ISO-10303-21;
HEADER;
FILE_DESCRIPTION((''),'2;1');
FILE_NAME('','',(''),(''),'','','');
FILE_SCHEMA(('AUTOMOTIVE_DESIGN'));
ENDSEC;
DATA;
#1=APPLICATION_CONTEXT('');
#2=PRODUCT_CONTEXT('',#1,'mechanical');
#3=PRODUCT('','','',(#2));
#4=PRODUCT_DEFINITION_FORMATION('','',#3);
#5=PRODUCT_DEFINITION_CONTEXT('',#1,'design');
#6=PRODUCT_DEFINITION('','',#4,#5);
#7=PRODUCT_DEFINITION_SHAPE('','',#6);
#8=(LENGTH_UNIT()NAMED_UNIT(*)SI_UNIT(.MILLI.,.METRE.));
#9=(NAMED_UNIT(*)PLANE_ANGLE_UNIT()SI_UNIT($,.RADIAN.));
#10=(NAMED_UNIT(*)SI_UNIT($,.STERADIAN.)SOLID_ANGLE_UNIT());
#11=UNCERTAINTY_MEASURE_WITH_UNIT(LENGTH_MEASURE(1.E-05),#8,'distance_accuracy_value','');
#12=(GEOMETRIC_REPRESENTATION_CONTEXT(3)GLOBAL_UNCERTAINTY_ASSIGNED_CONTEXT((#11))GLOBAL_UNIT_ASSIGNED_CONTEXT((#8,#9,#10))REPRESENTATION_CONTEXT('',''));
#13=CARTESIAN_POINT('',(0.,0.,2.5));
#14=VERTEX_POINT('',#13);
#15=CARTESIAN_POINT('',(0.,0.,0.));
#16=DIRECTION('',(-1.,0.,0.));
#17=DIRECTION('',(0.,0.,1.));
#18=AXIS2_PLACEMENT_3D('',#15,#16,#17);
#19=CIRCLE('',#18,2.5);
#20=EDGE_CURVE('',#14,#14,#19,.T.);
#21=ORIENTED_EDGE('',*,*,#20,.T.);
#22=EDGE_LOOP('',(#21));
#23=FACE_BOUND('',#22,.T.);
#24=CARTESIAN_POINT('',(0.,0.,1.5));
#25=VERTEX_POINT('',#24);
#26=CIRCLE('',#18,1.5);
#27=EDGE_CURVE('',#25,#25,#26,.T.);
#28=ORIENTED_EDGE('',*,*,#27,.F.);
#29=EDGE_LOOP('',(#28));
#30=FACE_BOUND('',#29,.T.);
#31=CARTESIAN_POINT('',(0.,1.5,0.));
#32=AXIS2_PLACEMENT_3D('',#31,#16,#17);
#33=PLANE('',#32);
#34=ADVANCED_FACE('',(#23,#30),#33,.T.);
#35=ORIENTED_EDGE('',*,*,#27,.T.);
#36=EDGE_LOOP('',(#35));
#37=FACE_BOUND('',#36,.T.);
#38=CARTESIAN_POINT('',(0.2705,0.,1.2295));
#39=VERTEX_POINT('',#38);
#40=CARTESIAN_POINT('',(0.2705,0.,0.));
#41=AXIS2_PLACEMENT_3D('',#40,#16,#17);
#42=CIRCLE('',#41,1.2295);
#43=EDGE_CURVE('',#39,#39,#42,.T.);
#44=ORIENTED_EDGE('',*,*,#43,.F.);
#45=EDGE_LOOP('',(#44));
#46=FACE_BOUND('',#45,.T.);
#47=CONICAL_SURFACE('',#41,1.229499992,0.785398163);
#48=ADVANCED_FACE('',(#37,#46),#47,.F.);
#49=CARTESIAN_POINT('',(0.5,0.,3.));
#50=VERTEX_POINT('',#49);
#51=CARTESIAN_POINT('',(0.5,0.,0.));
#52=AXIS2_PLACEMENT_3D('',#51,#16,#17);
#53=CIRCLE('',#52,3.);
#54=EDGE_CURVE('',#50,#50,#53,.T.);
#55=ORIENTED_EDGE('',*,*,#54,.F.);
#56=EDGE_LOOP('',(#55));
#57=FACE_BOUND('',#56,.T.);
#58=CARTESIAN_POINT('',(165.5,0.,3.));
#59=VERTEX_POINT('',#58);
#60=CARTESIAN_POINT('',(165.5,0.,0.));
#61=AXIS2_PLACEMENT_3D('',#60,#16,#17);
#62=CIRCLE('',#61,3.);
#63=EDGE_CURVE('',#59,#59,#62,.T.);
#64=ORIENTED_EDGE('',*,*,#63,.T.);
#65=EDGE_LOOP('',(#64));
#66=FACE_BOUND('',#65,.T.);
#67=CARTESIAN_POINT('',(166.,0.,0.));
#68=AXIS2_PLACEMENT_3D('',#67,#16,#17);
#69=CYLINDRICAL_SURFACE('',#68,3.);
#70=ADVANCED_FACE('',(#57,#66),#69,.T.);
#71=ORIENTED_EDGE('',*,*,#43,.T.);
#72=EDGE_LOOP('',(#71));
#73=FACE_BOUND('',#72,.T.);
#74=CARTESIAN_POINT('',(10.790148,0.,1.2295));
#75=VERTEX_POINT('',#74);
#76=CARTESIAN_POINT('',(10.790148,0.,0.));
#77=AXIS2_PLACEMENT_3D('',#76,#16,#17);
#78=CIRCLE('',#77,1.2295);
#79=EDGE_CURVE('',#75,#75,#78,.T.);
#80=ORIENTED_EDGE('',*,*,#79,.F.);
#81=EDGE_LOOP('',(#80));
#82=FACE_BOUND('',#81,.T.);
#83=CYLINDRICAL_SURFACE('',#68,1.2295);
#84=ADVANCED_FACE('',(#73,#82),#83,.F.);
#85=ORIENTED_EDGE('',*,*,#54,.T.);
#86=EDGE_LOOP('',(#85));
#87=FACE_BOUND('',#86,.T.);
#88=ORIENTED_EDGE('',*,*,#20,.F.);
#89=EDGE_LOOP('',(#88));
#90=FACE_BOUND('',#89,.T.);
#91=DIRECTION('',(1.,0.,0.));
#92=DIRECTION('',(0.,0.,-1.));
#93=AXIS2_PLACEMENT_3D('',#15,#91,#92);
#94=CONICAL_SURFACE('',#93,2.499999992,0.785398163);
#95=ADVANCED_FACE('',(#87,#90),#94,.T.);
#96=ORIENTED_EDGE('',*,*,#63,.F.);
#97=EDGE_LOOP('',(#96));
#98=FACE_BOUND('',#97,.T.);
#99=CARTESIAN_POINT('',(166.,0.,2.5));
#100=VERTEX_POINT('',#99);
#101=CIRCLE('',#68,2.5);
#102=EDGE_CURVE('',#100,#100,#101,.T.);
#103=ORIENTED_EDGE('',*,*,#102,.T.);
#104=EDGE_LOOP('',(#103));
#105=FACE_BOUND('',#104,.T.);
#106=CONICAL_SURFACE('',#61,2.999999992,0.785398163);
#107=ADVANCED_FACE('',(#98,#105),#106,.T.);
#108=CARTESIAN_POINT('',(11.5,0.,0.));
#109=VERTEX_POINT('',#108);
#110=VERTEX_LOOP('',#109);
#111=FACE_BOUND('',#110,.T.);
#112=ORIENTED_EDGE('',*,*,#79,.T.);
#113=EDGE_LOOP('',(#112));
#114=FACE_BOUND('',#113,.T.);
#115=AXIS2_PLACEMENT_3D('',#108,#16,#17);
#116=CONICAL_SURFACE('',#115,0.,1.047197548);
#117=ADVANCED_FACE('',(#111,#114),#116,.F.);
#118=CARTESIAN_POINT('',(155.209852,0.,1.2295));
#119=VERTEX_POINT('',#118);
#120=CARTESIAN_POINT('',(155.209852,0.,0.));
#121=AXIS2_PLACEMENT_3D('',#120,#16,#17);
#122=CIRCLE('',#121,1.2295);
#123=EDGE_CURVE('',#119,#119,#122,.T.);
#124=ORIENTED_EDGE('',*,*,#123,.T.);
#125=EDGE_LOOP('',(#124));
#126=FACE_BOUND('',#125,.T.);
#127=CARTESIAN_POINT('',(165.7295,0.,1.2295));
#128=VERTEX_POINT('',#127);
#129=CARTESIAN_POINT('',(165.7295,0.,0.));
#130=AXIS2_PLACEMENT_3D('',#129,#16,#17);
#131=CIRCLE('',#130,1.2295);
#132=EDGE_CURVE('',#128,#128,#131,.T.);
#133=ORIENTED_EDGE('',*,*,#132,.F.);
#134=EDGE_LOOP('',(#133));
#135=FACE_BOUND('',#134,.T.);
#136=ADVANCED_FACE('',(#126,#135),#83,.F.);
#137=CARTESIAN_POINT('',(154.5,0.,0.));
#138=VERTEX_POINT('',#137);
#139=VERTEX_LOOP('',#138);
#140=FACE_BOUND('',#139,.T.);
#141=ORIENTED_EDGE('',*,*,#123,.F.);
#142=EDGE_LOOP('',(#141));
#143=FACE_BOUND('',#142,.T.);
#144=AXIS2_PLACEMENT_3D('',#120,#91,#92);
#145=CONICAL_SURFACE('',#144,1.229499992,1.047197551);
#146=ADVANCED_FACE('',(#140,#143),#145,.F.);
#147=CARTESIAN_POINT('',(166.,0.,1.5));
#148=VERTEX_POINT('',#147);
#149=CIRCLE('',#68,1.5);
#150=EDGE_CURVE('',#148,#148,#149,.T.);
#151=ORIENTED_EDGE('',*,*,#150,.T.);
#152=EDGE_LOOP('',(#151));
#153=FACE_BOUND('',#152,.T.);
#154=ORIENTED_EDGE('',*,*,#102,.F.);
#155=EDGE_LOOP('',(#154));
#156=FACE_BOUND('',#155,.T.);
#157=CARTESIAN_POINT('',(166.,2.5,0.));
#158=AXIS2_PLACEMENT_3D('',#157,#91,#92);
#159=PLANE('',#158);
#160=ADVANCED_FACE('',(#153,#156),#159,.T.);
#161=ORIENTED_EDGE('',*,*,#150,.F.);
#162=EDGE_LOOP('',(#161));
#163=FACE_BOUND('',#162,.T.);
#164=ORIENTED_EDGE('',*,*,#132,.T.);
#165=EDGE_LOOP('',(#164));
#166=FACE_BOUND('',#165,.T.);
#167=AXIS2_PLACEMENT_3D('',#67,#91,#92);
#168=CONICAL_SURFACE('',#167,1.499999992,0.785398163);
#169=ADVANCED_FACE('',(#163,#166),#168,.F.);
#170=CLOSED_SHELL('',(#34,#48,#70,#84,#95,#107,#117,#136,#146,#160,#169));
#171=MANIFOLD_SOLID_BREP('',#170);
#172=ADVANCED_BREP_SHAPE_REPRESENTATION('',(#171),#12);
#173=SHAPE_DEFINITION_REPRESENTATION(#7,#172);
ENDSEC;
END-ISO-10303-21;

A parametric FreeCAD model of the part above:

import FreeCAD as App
import Part
import Sketcher
from FreeCAD import Vector
Q = App.Units.Quantity


def add_polygon(sketch, points):
    """Adds a closed chain of lines whose ends are joined by coincident constraints."""
    first, n = sketch.GeometryCount, len(points)
    for a, b in zip(points, points[1:] + points[:1]):
        sketch.addGeometry(Part.LineSegment(App.Vector(*a, 0), App.Vector(*b, 0)), False)
    for i in range(n):
        sketch.addConstraint(Sketcher.Constraint("Coincident", first + i, 2, first + (i + 1) % n, 1))

doc = App.newDocument("Part")
body = doc.addObject("PartDesign::Body", "Body")

sketch1 = body.newObject("Sketcher::SketchObject", "Sketch")
sketch1.AttachmentSupport = (doc.getObject("XY_Plane"), [""])
sketch1.MapMode = "FlatFace"
add_polygon(sketch1, [(155.21, 1.23), (154.5, 0), (11.5, 0), (10.79, 1.23), (0.27, 1.23), (0, 1.5), (0, 2.5), (0.5, 3), (165.5, 3), (166, 2.5), (166, 1.5), (165.73, 1.23)])
sketch1.addConstraint(Sketcher.Constraint("Horizontal", 1))
sketch1.addConstraint(Sketcher.Constraint("Horizontal", 3))
sketch1.addConstraint(Sketcher.Constraint("Vertical", 5))
sketch1.addConstraint(Sketcher.Constraint("Horizontal", 7))
sketch1.addConstraint(Sketcher.Constraint("Vertical", 9))
sketch1.addConstraint(Sketcher.Constraint("Horizontal", 11))
sketch1.addConstraint(Sketcher.Constraint("PointOnObject", 0, 2, -1))
sketch1.addConstraint(Sketcher.Constraint("PointOnObject", 4, 2, -2))
sketch1.addConstraint(Sketcher.Constraint("Perpendicular", 4, 6))
sketch1.addConstraint(Sketcher.Constraint("Perpendicular", 6, 8))
sketch1.addConstraint(Sketcher.Constraint("Perpendicular", 8, 10))
sketch1.addConstraint(Sketcher.Constraint("Horizontal", 5, 2, 8, 2))
sketch1.addConstraint(Sketcher.Constraint("Horizontal", 4, 2, 9, 2))
sketch1.addConstraint(Sketcher.Constraint("Horizontal", 3, 2, 10, 2))
sketch1.addConstraint(Sketcher.Constraint("Equal", 3, 11))
sketch1.addConstraint(Sketcher.Constraint("Equal", 0, 2))
sketch1.addConstraint(Sketcher.Constraint("Equal", 6, 8))
sketch1.addConstraint(Sketcher.Constraint("DistanceX", 1, 2, 1, 1, 143.0))
sketch1.addConstraint(Sketcher.Constraint("DistanceX", 7, 1, 7, 2, 165.0))
sketch1.addConstraint(Sketcher.Constraint("DistanceY", 5, 1, 5, 2, 1.0))
sketch1.addConstraint(Sketcher.Constraint("Angle", 0, Q("-120 deg")))
sketch1.addConstraint(Sketcher.Constraint("DistanceY", -1, 1, 6, 2, 3.0))
sketch1.addConstraint(Sketcher.Constraint("DistanceX", -1, 1, 8, 2, 166.0))
sketch1.addConstraint(Sketcher.Constraint("DistanceY", -1, 1, 2, 2, 1.2295))
revolution = body.newObject("PartDesign::Revolution", "Revolution")
revolution.Profile = sketch1
revolution.ReferenceAxis = (sketch1, ["H_Axis"])
revolution.Angle = 360

doc.recompute()
